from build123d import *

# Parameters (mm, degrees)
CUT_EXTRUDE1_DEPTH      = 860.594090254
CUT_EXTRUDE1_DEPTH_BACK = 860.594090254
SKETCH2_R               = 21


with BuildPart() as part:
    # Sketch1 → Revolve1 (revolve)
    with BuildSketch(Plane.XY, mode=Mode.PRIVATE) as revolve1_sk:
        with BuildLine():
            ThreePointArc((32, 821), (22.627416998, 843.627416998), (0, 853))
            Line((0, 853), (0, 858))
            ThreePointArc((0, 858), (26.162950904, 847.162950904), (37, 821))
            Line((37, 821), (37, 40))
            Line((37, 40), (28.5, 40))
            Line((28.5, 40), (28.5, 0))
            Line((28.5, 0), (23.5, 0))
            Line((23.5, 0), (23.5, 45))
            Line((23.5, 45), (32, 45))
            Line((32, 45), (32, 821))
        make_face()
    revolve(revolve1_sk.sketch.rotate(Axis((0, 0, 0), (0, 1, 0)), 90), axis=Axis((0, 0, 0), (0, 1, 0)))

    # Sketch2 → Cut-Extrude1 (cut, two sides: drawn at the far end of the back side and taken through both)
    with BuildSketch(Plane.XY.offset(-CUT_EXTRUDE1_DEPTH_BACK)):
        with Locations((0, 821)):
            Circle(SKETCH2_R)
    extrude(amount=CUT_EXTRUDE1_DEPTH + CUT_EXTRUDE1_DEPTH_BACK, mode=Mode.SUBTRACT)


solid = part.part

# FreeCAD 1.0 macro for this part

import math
import FreeCAD as App
import Part
import Sketcher

V = App.Vector
Q = App.Units.Quantity

doc = App.newDocument("Part")
body = doc.addObject("PartDesign::Body", "Body")

# Sketch on XY plane
sketch1 = body.newObject("Sketcher::SketchObject", "Sketch")
sketch1.AttachmentSupport = (doc.getObject("XY_Plane"), [""])
sketch1.MapMode = "FlatFace"
sketch1.addGeometry(Part.ArcOfCircle(Part.Circle(V(0, 821, 0), V(0, 0, 1), 32), math.radians(0), math.radians(90)), False)
sketch1.addGeometry(Part.LineSegment(V(32, 821, 0), V(32, 45, 0)), False)
sketch1.addGeometry(Part.LineSegment(V(32, 45, 0), V(23.5, 45, 0)), False)
sketch1.addGeometry(Part.LineSegment(V(23.5, 45, 0), V(23.5, 0, 0)), False)
sketch1.addGeometry(Part.LineSegment(V(23.5, 0, 0), V(28.5, 0, 0)), False)
sketch1.addGeometry(Part.LineSegment(V(28.5, 0, 0), V(28.5, 40, 0)), False)
sketch1.addGeometry(Part.LineSegment(V(28.5, 40, 0), V(37, 40, 0)), False)
sketch1.addGeometry(Part.LineSegment(V(37, 40, 0), V(37, 821, 0)), False)
sketch1.addGeometry(Part.ArcOfCircle(Part.Circle(V(0, 821, 0), V(0, 0, 1), 37), math.radians(0), math.radians(90)), False)
sketch1.addGeometry(Part.LineSegment(V(0, 858, 0), V(0, 853, 0)), False)
sketch1.addConstraint(Sketcher.Constraint("Tangent", 0, 1, 1, 1))
sketch1.addConstraint(Sketcher.Constraint("Coincident", 1, 2, 2, 1))
sketch1.addConstraint(Sketcher.Constraint("Coincident", 2, 2, 3, 1))
sketch1.addConstraint(Sketcher.Constraint("Coincident", 3, 2, 4, 1))
sketch1.addConstraint(Sketcher.Constraint("Coincident", 4, 2, 5, 1))
sketch1.addConstraint(Sketcher.Constraint("Coincident", 5, 2, 6, 1))
sketch1.addConstraint(Sketcher.Constraint("Coincident", 6, 2, 7, 1))
sketch1.addConstraint(Sketcher.Constraint("Tangent", 7, 2, 8, 1))
sketch1.addConstraint(Sketcher.Constraint("Coincident", 8, 2, 9, 1))
sketch1.addConstraint(Sketcher.Constraint("Coincident", 9, 2, 0, 2))
sketch1.addConstraint(Sketcher.Constraint("Vertical", 1))
sketch1.addConstraint(Sketcher.Constraint("Horizontal", 2))
sketch1.addConstraint(Sketcher.Constraint("Vertical", 3))
sketch1.addConstraint(Sketcher.Constraint("Horizontal", 4))
sketch1.addConstraint(Sketcher.Constraint("Vertical", 5))
sketch1.addConstraint(Sketcher.Constraint("Horizontal", 6))
sketch1.addConstraint(Sketcher.Constraint("Vertical", 7))
sketch1.addConstraint(Sketcher.Constraint("Vertical", 9))
sketch1.addConstraint(Sketcher.Constraint("Coincident", 8, 3, 0, 3))
sketch1.addConstraint(Sketcher.Constraint("PointOnObject", 0, 3, -2))
sketch1.addConstraint(Sketcher.Constraint("PointOnObject", 3, 2, -1))
sketch1.addConstraint(Sketcher.Constraint("PointOnObject", 8, 2, -2))
sketch1.addConstraint(Sketcher.Constraint("Equal", 2, 6))
sketch1.addConstraint(Sketcher.Constraint("Radius", 0, Q("32 mm")))
sketch1.addConstraint(Sketcher.Constraint("Radius", 8, Q("37 mm")))
sketch1.addConstraint(Sketcher.Constraint("DistanceY", 1, 2, 1, 1, Q("776 mm")))
sketch1.addConstraint(Sketcher.Constraint("DistanceY", 3, 2, 3, 1, Q("45 mm")))
sketch1.addConstraint(Sketcher.Constraint("DistanceY", 5, 1, 5, 2, Q("40 mm")))
sketch1.addConstraint(Sketcher.Constraint("DistanceX", 2, 2, 2, 1, Q("8.5 mm")))
revolution = body.newObject("PartDesign::Revolution", "Revolution")
revolution.Profile = sketch1
revolution.ReferenceAxis = (sketch1, ["V_Axis"])
revolution.Angle = 360

# Sketch on XY plane
sketch2 = body.newObject("Sketcher::SketchObject", "Sketch001")
sketch2.AttachmentSupport = (doc.getObject("XY_Plane"), [""])
sketch2.MapMode = "FlatFace"
sketch2.addGeometry(Part.Circle(V(0, 821, 0), V(0, 0, 1), 21), False)
sketch2.addConstraint(Sketcher.Constraint("PointOnObject", 0, 3, -2))
sketch2.addConstraint(Sketcher.Constraint("Diameter", 0, Q("42 mm")))
sketch2.addConstraint(Sketcher.Constraint("DistanceY", -1, 1, 0, 3, Q("821 mm")))
pocket1 = body.newObject("PartDesign::Pocket", "Pocket")
pocket1.Profile = sketch2
pocket1.Type = "ThroughAll"
pocket1.Midplane = True

doc.recompute()
